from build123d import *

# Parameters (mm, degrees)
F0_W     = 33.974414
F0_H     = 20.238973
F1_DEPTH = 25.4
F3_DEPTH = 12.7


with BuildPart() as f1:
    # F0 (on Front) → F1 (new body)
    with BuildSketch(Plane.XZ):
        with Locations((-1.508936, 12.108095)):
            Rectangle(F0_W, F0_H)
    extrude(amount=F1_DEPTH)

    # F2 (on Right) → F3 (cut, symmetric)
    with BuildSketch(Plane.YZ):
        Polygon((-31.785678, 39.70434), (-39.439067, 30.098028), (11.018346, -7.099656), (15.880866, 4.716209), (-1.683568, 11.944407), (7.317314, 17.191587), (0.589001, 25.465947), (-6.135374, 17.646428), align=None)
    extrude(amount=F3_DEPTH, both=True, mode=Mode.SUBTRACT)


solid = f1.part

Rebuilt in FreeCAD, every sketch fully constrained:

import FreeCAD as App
import Part
import Sketcher

V = App.Vector
Q = App.Units.Quantity

doc = App.newDocument("Part")
body = doc.addObject("PartDesign::Body", "Body")

sketch1 = body.newObject("Sketcher::SketchObject", "Sketch")
sketch1.AttachmentSupport = (doc.getObject("XZ_Plane"), [""])
sketch1.MapMode = "FlatFace"
sketch1.addGeometry([
    Part.LineSegment(V(-18.496143, 22.227581, 0), V(-18.496143, 1.988609, 0)),
    Part.LineSegment(V(-18.496143, 1.988609, 0), V(15.478271, 1.988609, 0)),
    Part.LineSegment(V(15.478271, 1.988609, 0), V(15.478271, 22.227581, 0)),
    Part.LineSegment(V(15.478271, 22.227581, 0), V(-18.496143, 22.227581, 0)),
], False)
sketch1.addConstraint([
    Sketcher.Constraint("Coincident", 0, 2, 1, 1),
    Sketcher.Constraint("Coincident", 1, 2, 2, 1),
    Sketcher.Constraint("Coincident", 2, 2, 3, 1),
    Sketcher.Constraint("Coincident", 3, 2, 0, 1),
    Sketcher.Constraint("Vertical", 0),
    Sketcher.Constraint("Horizontal", 1),
    Sketcher.Constraint("Vertical", 2),
    Sketcher.Constraint("Horizontal", 3),
    Sketcher.Constraint("DistanceX", 1, 1, 1, 2, Q("33.974414 mm")),
    Sketcher.Constraint("DistanceY", 0, 2, 0, 1, Q("20.238973 mm")),
    Sketcher.Constraint("DistanceY", -1, 1, 0, 2, Q("1.988609 mm")),
    Sketcher.Constraint("DistanceX", -1, 1, 1, 2, Q("15.478271 mm")),
])
pad1 = body.newObject("PartDesign::Pad", "Pad")
pad1.Profile = sketch1
pad1.Length = Q("1 in")

sketch2 = body.newObject("Sketcher::SketchObject", "Sketch001")
sketch2.AttachmentSupport = (doc.getObject("YZ_Plane"), [""])
sketch2.MapMode = "FlatFace"
sketch2.addGeometry([
    Part.LineSegment(V(-31.785678, 39.70434, 0), V(-39.439067, 30.098028, 0)),
    Part.LineSegment(V(-39.439067, 30.098028, 0), V(11.018346, -7.099656, 0)),
    Part.LineSegment(V(11.018346, -7.099656, 0), V(15.880866, 4.716209, 0)),
    Part.LineSegment(V(15.880866, 4.716209, 0), V(-1.683568, 11.944407, 0)),
    Part.LineSegment(V(-1.683568, 11.944407, 0), V(7.317314, 17.191587, 0)),
    Part.LineSegment(V(7.317314, 17.191587, 0), V(0.589001, 25.465947, 0)),
    Part.LineSegment(V(0.589001, 25.465947, 0), V(-6.135374, 17.646428, 0)),
    Part.LineSegment(V(-6.135374, 17.646428, 0), V(-31.785678, 39.70434, 0)),
], False)
sketch2.addConstraint([
    Sketcher.Constraint("Coincident", 0, 2, 1, 1),
    Sketcher.Constraint("Coincident", 1, 2, 2, 1),
    Sketcher.Constraint("Coincident", 2, 2, 3, 1),
    Sketcher.Constraint("Coincident", 3, 2, 4, 1),
    Sketcher.Constraint("Coincident", 4, 2, 5, 1),
    Sketcher.Constraint("Coincident", 5, 2, 6, 1),
    Sketcher.Constraint("Coincident", 6, 2, 7, 1),
    Sketcher.Constraint("Coincident", 7, 2, 0, 1),
    Sketcher.Constraint("Perpendicular", 2, 3),
    Sketcher.Constraint("Perpendicular", 6, 7),
    Sketcher.Constraint("Distance", 6, Q("10.3132 mm")),
    Sketcher.Constraint("DistanceX", -1, 1, 5, 2, Q("0.589001 mm")),
    Sketcher.Constraint("DistanceX", 0, 2, 3, 2, Q("37.755499 mm")),
    Sketcher.Constraint("Distance", 0, Q("12.282329 mm")),
    Sketcher.Constraint("DistanceY", -1, 1, 2, 2, Q("4.716209 mm")),
    Sketcher.Constraint("DistanceY", -1, 1, 6, 2, Q("17.646428 mm")),
    Sketcher.Constraint("DistanceX", 7, 2, -1, 1, Q("31.785678 mm")),
    Sketcher.Constraint("DistanceY", -1, 1, 7, 2, Q("39.70434 mm")),
    Sketcher.Constraint("DistanceX", 1, 2, 2, 2, Q("4.86252 mm")),
    Sketcher.Constraint("DistanceY", 2, 2, 0, 2, Q("25.381819 mm")),
    Sketcher.Constraint("DistanceY", 3, 2, 0, 2, Q("18.153621 mm")),
    Sketcher.Constraint("DistanceX", 3, 2, 4, 2, Q("9.000882 mm")),
    Sketcher.Constraint("DistanceY", 3, 2, 4, 2, Q("5.24718 mm")),
    Sketcher.Constraint("DistanceX", 4, 2, 1, 2, Q("3.701032 mm")),
])
pocket1 = body.newObject("PartDesign::Pocket", "Pocket")
pocket1.Profile = sketch2
pocket1.Length = Q("1 in")
pocket1.Midplane = True

doc.recompute()
